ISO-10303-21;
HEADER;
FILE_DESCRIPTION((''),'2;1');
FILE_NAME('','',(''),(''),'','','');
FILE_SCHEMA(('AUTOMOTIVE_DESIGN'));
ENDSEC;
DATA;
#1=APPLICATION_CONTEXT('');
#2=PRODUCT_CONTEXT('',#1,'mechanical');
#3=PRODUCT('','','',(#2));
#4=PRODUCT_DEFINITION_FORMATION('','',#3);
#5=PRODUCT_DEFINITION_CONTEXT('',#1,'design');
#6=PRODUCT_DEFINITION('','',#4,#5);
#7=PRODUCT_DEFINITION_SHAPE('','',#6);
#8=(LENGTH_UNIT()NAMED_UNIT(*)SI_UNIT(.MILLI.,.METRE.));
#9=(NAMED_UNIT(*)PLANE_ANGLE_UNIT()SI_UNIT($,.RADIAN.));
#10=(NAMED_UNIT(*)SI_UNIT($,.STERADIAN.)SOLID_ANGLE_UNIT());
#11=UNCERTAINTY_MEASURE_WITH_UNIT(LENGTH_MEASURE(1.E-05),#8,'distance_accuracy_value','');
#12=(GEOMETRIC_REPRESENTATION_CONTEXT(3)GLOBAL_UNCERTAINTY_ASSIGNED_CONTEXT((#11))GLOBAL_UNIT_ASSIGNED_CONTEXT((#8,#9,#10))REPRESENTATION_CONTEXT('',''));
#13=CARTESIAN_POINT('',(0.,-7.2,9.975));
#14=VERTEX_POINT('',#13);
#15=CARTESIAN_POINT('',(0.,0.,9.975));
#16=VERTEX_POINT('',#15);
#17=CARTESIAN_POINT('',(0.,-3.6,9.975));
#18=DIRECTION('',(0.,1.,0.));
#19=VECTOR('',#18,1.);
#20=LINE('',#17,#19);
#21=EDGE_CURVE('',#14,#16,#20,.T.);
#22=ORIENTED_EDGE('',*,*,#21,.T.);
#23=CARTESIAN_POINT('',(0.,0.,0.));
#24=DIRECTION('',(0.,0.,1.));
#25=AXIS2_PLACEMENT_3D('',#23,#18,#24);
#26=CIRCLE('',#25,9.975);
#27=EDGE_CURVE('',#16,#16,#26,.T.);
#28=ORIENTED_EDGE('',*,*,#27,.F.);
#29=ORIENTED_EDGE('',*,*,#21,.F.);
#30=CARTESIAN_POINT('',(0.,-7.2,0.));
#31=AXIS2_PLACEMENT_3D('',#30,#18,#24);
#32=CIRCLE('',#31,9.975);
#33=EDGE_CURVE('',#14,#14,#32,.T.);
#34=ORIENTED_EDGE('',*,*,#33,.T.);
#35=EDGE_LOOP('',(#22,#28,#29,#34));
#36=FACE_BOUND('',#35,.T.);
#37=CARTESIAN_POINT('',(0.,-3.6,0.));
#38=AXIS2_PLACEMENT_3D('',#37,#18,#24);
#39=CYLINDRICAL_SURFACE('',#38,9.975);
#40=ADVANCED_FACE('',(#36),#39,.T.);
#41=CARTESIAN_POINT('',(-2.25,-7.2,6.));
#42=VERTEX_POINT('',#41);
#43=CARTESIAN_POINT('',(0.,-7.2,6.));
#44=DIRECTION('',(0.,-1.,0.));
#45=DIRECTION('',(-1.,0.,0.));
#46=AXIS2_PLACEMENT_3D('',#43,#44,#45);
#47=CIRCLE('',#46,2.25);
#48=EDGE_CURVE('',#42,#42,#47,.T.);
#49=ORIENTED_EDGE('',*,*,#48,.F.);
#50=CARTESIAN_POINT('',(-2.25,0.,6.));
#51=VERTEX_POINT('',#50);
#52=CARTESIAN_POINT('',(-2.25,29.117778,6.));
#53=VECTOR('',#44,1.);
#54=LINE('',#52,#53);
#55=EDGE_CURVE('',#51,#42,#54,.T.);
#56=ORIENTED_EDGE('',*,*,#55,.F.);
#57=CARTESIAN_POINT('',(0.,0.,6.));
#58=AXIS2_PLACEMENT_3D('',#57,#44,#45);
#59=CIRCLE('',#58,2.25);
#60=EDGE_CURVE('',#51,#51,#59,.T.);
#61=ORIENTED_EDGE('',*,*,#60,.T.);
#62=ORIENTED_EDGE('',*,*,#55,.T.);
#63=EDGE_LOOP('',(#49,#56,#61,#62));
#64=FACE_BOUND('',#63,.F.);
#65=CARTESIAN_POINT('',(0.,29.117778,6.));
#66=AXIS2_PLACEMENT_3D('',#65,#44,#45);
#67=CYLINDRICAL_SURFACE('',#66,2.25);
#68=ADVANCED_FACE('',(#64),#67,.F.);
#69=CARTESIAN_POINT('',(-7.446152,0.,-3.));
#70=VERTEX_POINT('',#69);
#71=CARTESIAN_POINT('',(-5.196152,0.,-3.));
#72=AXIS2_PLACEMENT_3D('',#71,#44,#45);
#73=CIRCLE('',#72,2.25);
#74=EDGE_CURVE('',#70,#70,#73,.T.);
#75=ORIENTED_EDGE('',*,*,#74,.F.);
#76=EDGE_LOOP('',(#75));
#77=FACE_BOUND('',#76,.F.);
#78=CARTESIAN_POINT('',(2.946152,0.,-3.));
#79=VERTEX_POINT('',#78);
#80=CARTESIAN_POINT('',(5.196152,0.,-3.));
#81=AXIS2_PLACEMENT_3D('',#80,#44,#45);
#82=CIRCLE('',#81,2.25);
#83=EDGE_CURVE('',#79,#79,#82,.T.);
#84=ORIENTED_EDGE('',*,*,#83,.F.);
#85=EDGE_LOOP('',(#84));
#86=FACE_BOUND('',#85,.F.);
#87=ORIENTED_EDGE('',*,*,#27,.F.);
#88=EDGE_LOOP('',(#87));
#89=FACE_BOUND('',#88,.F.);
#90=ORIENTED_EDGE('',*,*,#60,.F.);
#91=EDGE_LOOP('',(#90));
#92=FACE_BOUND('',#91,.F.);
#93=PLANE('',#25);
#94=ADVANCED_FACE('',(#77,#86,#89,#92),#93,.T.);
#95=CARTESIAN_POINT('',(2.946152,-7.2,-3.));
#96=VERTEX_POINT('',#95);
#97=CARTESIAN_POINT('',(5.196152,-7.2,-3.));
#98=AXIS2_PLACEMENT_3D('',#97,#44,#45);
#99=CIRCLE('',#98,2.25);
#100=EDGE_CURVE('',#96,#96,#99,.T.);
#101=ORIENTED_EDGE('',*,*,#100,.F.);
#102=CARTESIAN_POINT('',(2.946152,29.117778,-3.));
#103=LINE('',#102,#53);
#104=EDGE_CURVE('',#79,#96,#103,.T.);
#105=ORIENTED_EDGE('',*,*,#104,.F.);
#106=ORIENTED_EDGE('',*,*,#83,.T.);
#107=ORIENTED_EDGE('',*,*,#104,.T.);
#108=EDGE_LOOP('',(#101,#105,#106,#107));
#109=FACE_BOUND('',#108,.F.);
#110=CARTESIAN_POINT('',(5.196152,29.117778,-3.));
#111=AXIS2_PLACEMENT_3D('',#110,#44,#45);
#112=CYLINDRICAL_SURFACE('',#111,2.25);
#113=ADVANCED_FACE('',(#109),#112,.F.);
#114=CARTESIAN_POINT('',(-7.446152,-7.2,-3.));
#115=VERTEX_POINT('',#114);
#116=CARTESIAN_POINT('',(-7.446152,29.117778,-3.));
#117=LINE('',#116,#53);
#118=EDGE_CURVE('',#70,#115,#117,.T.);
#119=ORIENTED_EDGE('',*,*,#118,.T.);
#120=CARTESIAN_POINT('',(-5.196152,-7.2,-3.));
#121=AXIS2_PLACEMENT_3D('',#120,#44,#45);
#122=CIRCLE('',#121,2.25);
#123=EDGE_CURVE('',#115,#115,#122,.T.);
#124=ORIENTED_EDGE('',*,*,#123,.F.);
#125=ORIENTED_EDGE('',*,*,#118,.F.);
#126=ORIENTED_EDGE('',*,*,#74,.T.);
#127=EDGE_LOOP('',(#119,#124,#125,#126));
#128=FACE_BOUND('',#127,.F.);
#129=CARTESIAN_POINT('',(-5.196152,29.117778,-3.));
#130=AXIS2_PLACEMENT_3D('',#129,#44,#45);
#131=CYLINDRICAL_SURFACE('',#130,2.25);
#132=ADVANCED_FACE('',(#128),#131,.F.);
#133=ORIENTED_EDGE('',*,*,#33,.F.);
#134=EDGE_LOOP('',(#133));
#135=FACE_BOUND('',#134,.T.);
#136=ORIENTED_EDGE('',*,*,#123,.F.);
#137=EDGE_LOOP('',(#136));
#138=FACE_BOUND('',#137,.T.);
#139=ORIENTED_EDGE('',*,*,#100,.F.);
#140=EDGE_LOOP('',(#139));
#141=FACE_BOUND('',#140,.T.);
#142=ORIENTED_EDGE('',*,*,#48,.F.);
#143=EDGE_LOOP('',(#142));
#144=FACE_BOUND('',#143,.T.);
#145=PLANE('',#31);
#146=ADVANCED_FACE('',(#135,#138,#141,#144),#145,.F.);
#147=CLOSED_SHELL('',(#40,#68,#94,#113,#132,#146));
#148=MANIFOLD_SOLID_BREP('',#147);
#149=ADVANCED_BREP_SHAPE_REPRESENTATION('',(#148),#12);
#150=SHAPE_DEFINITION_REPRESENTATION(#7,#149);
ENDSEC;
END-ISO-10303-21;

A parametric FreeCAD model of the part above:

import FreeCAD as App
import Part
import Sketcher
from FreeCAD import Vector


def add_polygon(sketch, points):
    """Adds a closed chain of lines whose ends are joined by coincident constraints."""
    first, n = sketch.GeometryCount, len(points)
    for a, b in zip(points, points[1:] + points[:1]):
        sketch.addGeometry(Part.LineSegment(App.Vector(*a, 0), App.Vector(*b, 0)), False)
    for i in range(n):
        sketch.addConstraint(Sketcher.Constraint("Coincident", first + i, 2, first + (i + 1) % n, 1))

doc = App.newDocument("Part")
body = doc.addObject("PartDesign::Body", "Body")

# Sketch on YZ plane
sketch1 = doc.addObject("Sketcher::SketchObject", "Sketch")
body.addObject(sketch1)
sketch1.AttachmentSupport = (doc.YZ_Plane, [""])
sketch1.MapMode = "FlatFace"
add_polygon(sketch1, [(-7.2, 9.975), (-7.2, 0), (0, 0), (0, 9.975)])  # lines 0-3
sketch1.addConstraint(Sketcher.Constraint("Vertical", 0))
sketch1.addConstraint(Sketcher.Constraint("Horizontal", 1))
sketch1.addConstraint(Sketcher.Constraint("Vertical", 2))
sketch1.addConstraint(Sketcher.Constraint("Horizontal", 3))
sketch1.addConstraint(Sketcher.Constraint("Coincident", 1, 2, -1, 1))
sketch1.addConstraint(Sketcher.Constraint("DistanceX", 1, 1, 1, 2, 7.2))
sketch1.addConstraint(Sketcher.Constraint("DistanceY", 0, 2, 0, 1, 9.975))
revolution = doc.addObject("PartDesign::Revolution", "Revolution")
body.addObject(revolution)
revolution.Profile = sketch1
revolution.ReferenceAxis = (sketch1, ["H_Axis"])
revolution.Angle = 360

# Sketch on XZ plane
sketch2 = doc.addObject("Sketcher::SketchObject", "Sketch001")
body.addObject(sketch2)
sketch2.AttachmentSupport = (doc.XZ_Plane, [""])
sketch2.MapMode = "FlatFace"
sketch2.addGeometry(Part.Circle(Vector(0, 6, 0), Vector(0, 0, 1), 2.25), False)
sketch2.addGeometry(Part.Circle(Vector(-5.196152, -3, 0), Vector(0, 0, 1), 2.25), False)
sketch2.addGeometry(Part.Circle(Vector(5.196152, -3, 0), Vector(0, 0, 1), 2.25), False)
sketch2.addConstraint(Sketcher.Constraint("Equal", 0, 1))
sketch2.addConstraint(Sketcher.Constraint("Equal", 1, 2))
sketch2.addConstraint(Sketcher.Constraint("Symmetric", 1, 3, 2, 3, -2))
sketch2.addConstraint(Sketcher.Constraint("PointOnObject", 0, 3, -2))
sketch2.addConstraint(Sketcher.Constraint("Diameter", 0, 4.5))
sketch2.addConstraint(Sketcher.Constraint("DistanceY", -1, 1, 0, 3, 6.0))
sketch2.addConstraint(Sketcher.Constraint("DistanceY", 1, 3, -1, 1, 3.0))
sketch2.addConstraint(Sketcher.Constraint("DistanceX", 1, 3, -1, 1, 5.196152))
doc.recompute()
hole = doc.addObject("PartDesign::Hole", "Hole")
body.addObject(hole)
hole.Profile = sketch2
hole.ThreadType = "None"
hole.Diameter = 4.5
hole.DepthType = "ThroughAll"
hole.Reversed = True

doc.recompute()
